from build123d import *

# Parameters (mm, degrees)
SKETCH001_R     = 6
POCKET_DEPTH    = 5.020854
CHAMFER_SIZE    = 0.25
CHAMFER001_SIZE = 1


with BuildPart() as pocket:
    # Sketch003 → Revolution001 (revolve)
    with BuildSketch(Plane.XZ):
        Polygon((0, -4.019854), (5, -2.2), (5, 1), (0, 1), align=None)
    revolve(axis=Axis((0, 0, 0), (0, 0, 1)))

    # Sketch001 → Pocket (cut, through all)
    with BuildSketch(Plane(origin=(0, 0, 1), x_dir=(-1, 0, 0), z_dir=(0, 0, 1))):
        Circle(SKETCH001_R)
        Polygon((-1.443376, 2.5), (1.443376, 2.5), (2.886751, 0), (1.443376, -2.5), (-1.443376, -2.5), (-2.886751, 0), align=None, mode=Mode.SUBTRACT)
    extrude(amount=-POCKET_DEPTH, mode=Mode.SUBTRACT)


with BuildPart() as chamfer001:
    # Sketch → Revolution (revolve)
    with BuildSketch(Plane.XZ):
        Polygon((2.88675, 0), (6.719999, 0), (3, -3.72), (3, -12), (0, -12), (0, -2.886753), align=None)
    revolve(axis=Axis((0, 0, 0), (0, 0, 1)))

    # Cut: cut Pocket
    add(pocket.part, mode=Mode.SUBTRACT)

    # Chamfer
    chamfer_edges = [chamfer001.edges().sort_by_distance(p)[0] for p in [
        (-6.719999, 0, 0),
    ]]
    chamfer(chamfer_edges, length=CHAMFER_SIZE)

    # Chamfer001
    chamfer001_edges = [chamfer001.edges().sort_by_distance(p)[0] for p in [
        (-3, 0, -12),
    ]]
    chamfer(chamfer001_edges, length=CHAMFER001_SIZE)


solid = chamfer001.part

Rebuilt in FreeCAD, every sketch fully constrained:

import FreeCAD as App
import Part
import Sketcher
Q = App.Units.Quantity


def edges_at(feature, points):
    """Names of the edges that pass closest to the given points."""
    edges = feature.Shape.Edges
    near = lambda p: min(range(len(edges)), key=lambda i: edges[i].distToShape(Part.Vertex(*p))[0])
    return sorted({f"Edge{near(p) + 1}" for p in points})


def add_polygon(sketch, points):
    """Adds a closed chain of lines whose ends are joined by coincident constraints."""
    first, n = sketch.GeometryCount, len(points)
    for a, b in zip(points, points[1:] + points[:1]):
        sketch.addGeometry(Part.LineSegment(App.Vector(*a, 0), App.Vector(*b, 0)), False)
    for i in range(n):
        sketch.addConstraint(Sketcher.Constraint("Coincident", first + i, 2, first + (i + 1) % n, 1))

doc = App.newDocument("Part")
body = doc.addObject("PartDesign::Body", "Body")

sketch1 = body.newObject("Sketcher::SketchObject", "Sketch")
sketch1.AttachmentSupport = (doc.getObject("XZ_Plane"), [""])
sketch1.MapMode = "FlatFace"
add_polygon(sketch1, [(0, -4.019854), (5, -2.2), (5, 1), (0, 1)])
sketch1.addConstraint([
    Sketcher.Constraint("Vertical", 1),
    Sketcher.Constraint("Horizontal", 2),
    Sketcher.Constraint("Vertical", 3),
    Sketcher.Constraint("PointOnObject", 2, 2, -2),
    Sketcher.Constraint("DistanceX", 2, 2, 2, 1, 5.0),
    Sketcher.Constraint("DistanceY", 1, 1, 1, 2, 3.2),
    Sketcher.Constraint("DistanceY", -1, 1, 1, 2, 1.0),
    Sketcher.Constraint("Distance", 0, 5.32089),
])
revolution = body.newObject("PartDesign::Revolution", "Revolution")
revolution.Profile = sketch1
revolution.ReferenceAxis = (sketch1, ["V_Axis"])
revolution.Angle = 360

sketch2 = body.newObject("Sketcher::SketchObject", "Sketch001")
sketch2.AttachmentSupport = (doc.getObject("XY_Plane"), [""])
sketch2.MapMode = "FlatFace"
sketch2.AttachmentOffset = App.Placement(App.Vector(0, 0, 1), App.Rotation())
sketch2.addGeometry(Part.Circle(App.Vector(0, 0, 0), App.Vector(0, 0, 1), 6), False)
add_polygon(sketch2, [(2.886751, 0), (1.443376, -2.5), (-1.443376, -2.5), (-2.886751, 0), (-1.443376, 2.5), (1.443376, 2.5)])
sketch2.addConstraint([
    Sketcher.Constraint("Horizontal", 2),
    Sketcher.Constraint("Horizontal", 5),
    Sketcher.Constraint("Coincident", 0, 3, -1, 1),
    Sketcher.Constraint("Symmetric", 1, 2, 4, 2, -1, 1),
    Sketcher.Constraint("Symmetric", 3, 2, 6, 2, -1, 1),
    Sketcher.Constraint("PointOnObject", 3, 2, -1),
    Sketcher.Constraint("Parallel", 3, 6),
    Sketcher.Constraint("Vertical", 2, 2, 4, 2),
    Sketcher.Constraint("Diameter", 0, 12.0),
    Sketcher.Constraint("Angle", 1, Q("-119.999988 deg")),
    Sketcher.Constraint("DistanceY", 2, 2, 4, 2, 5.0),
    Sketcher.Constraint("DistanceX", 2, 2, 2, 1, 2.886752),
])
pocket1 = body.newObject("PartDesign::Pocket", "Pocket")
pocket1.Profile = sketch2
pocket1.Type = "ThroughAll"
body2 = doc.addObject("PartDesign::Body", "Body001")

sketch3 = body2.newObject("Sketcher::SketchObject", "Sketch002")
sketch3.AttachmentSupport = (doc.getObject("XZ_Plane001"), [""])
sketch3.MapMode = "FlatFace"
add_polygon(sketch3, [(6.719999, 0), (2.88675, 0), (0, -2.886753), (0, -12), (3, -12), (3, -3.72)])
sketch3.addConstraint([
    Sketcher.Constraint("Horizontal", 0),
    Sketcher.Constraint("Vertical", 2),
    Sketcher.Constraint("Horizontal", 3),
    Sketcher.Constraint("Vertical", 4),
    Sketcher.Constraint("PointOnObject", 0, 2, -1),
    Sketcher.Constraint("PointOnObject", 1, 2, -2),
    Sketcher.Constraint("Parallel", 1, 5),
    Sketcher.Constraint("DistanceX", 3, 1, 3, 2, 3.0),
    Sketcher.Constraint("Angle", 5, Q("45.000008 deg")),
    Sketcher.Constraint("DistanceY", 2, 2, -1, 1, 12.0),
    Sketcher.Constraint("DistanceY", 4, 1, 4, 2, 8.28),
    Sketcher.Constraint("DistanceX", 0, 2, 0, 1, 3.833249),
])
revolution2 = body2.newObject("PartDesign::Revolution", "Revolution001")
revolution2.Profile = sketch3
revolution2.ReferenceAxis = (sketch3, ["V_Axis"])
revolution2.Angle = 360
doc.recompute()

boolean = body2.newObject("PartDesign::Boolean", "Boolean")
boolean.Type = "Cut"
boolean.addObjects([body])
doc.recompute()

chamfer = body2.newObject("PartDesign::Chamfer", "Chamfer")
chamfer.Base = (boolean, edges_at(boolean, [(-6.72, 0, 0)]))
chamfer.Size = 0.25
doc.recompute()

chamfer2 = body2.newObject("PartDesign::Chamfer", "Chamfer001")
chamfer2.Base = (chamfer, edges_at(chamfer, [(-3, 0, -12)]))
chamfer2.Size = 1

doc.recompute()
